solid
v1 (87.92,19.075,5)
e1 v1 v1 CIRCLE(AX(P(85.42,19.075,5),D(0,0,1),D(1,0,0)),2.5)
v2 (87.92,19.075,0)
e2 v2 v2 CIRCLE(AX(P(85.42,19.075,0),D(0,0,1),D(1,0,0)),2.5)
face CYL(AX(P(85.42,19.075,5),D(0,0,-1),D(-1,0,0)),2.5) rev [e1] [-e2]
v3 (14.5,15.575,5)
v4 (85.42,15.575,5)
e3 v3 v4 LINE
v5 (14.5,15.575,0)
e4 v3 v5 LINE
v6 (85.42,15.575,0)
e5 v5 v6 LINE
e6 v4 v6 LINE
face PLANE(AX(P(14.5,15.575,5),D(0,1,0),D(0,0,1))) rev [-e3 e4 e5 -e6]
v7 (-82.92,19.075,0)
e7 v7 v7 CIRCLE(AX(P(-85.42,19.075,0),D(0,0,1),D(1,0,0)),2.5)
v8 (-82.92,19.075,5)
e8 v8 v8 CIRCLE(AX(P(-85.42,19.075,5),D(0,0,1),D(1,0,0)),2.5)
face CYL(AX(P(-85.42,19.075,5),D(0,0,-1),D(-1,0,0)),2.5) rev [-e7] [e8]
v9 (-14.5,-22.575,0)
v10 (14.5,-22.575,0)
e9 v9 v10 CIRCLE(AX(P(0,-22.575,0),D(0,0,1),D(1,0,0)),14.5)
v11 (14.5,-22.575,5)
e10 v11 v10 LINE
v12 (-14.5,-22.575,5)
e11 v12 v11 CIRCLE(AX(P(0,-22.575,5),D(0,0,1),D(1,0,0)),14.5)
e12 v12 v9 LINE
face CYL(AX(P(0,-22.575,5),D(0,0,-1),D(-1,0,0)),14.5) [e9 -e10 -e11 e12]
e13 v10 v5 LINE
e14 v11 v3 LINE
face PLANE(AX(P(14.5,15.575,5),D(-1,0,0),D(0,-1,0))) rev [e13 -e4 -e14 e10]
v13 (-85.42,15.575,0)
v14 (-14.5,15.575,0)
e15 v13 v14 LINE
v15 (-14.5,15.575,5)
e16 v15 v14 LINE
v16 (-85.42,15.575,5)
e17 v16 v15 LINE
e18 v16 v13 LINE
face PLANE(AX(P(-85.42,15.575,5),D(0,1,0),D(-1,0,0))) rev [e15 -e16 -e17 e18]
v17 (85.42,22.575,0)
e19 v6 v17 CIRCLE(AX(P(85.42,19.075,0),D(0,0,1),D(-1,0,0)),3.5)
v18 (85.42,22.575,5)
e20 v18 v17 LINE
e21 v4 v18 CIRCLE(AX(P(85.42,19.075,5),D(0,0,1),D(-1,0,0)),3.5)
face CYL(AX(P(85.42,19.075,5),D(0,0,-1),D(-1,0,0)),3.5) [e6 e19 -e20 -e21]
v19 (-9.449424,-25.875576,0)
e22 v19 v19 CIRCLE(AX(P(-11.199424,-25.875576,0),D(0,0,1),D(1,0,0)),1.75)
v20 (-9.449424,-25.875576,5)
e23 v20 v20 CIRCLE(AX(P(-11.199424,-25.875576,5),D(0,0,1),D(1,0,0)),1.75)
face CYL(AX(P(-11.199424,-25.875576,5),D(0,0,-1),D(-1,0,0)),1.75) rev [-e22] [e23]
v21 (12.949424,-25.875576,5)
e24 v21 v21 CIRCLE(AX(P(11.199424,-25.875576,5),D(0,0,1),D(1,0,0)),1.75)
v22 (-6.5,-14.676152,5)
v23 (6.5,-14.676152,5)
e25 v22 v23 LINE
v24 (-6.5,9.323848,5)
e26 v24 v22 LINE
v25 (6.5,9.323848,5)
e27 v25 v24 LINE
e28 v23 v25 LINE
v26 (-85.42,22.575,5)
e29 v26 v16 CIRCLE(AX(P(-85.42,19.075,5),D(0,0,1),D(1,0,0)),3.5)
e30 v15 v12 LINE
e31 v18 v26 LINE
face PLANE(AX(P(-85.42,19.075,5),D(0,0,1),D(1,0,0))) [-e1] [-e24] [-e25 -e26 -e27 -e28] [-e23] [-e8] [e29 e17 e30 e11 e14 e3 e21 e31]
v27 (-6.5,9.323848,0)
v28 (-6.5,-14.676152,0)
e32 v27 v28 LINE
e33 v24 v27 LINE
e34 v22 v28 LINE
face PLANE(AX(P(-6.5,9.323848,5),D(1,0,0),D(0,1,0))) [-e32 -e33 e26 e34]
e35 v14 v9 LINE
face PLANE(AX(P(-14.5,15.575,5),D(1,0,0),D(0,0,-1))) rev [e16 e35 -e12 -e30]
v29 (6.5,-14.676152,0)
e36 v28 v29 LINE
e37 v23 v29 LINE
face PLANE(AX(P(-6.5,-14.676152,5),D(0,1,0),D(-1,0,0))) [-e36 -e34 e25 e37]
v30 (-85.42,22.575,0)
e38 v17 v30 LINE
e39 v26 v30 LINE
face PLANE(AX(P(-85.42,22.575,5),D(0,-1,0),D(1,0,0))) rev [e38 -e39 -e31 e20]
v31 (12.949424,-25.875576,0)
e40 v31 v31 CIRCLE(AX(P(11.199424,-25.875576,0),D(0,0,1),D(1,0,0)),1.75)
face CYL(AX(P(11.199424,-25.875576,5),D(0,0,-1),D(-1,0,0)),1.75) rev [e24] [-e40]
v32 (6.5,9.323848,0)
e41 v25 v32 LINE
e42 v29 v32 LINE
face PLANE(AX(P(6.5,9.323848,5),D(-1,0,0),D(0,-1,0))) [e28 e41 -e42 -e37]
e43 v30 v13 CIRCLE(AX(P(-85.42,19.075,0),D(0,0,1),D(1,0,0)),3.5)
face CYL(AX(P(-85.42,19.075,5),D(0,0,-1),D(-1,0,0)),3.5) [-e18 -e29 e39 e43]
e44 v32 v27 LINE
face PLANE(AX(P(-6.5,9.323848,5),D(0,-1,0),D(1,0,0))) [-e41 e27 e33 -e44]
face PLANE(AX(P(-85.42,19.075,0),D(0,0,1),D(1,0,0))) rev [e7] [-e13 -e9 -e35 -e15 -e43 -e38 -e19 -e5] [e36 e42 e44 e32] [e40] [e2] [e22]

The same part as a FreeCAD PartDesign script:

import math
import FreeCAD as App
import Part
import Sketcher
from FreeCAD import Vector


def add_polygon(sketch, points):
    """Adds a closed chain of lines whose ends are joined by coincident constraints."""
    first, n = sketch.GeometryCount, len(points)
    for a, b in zip(points, points[1:] + points[:1]):
        sketch.addGeometry(Part.LineSegment(App.Vector(*a, 0), App.Vector(*b, 0)), False)
    for i in range(n):
        sketch.addConstraint(Sketcher.Constraint("Coincident", first + i, 2, first + (i + 1) % n, 1))

doc = App.newDocument("Part")
params = doc.addObject("Spreadsheet::Sheet", "Params")
for row, (alias, value) in enumerate([
    ("sketch1_diameter", "5 mm"),
    ("sketch1_diameter2", "3.5 mm"),
    ("sketch1_radius", "3.5 mm"),
    ("sketch1_radius2", "14.5 mm"),
    ("sketch1_width", "13 mm"),
    ("pad1_length", "5 mm"),
], start=1):
    params.set(f"A{row}", alias)
    params.set(f"B{row}", "=" + value)
    params.setAlias(f"B{row}", alias)

body = doc.addObject("PartDesign::Body", "Body")

# Sketch on XY plane
sketch1 = body.newObject("Sketcher::SketchObject", "Sketch")
sketch1.AttachmentSupport = (doc.getObject("XY_Plane"), [""])
sketch1.MapMode = "FlatFace"
sketch1.addGeometry(Part.LineSegment(Vector(85.4, 22.6, 0), Vector(-85.4, 22.6, 0)), False)  # 0
sketch1.addGeometry(Part.ArcOfCircle(Part.Circle(Vector(-85.4, 19.1, 0), Vector(0, 0, 1), 3.5), math.radians(90), math.radians(270)), False)  # 1
sketch1.addGeometry(Part.LineSegment(Vector(-85.4, 15.6, 0), Vector(-14.5, 15.6, 0)), False)  # 2
sketch1.addGeometry(Part.LineSegment(Vector(-14.5, 15.6, 0), Vector(-14.5, -22.6, 0)), False)  # 3
sketch1.addGeometry(Part.ArcOfCircle(Part.Circle(Vector(0, -22.6, 0), Vector(0, 0, 1), 14.5), math.radians(180), math.radians(360)), False)  # 4
sketch1.addGeometry(Part.LineSegment(Vector(14.5, -22.6, 0), Vector(14.5, 15.6, 0)), False)  # 5
sketch1.addGeometry(Part.LineSegment(Vector(14.5, 15.6, 0), Vector(85.4, 15.6, 0)), False)  # 6
sketch1.addGeometry(Part.ArcOfCircle(Part.Circle(Vector(85.4, 19.1, 0), Vector(0, 0, 1), 3.5), math.radians(-90), math.radians(90)), False)  # 7
sketch1.addGeometry(Part.Circle(Vector(11.2, -25.9, 0), Vector(0, 0, 1), 1.8), False)  # 8
sketch1.addGeometry(Part.Circle(Vector(-11.2, -25.9, 0), Vector(0, 0, 1), 1.8), False)  # 9
sketch1.addGeometry(Part.Circle(Vector(85.4, 19.1, 0), Vector(0, 0, 1), 2.5), False)  # 10
add_polygon(sketch1, [(-6.5, -14.7), (-6.5, 9.3), (6.5, 9.3), (6.5, -14.7)])  # lines 11-14
sketch1.addGeometry(Part.Circle(Vector(-85.4, 19.1, 0), Vector(0, 0, 1), 2.5), False)  # 15
sketch1.addConstraint(Sketcher.Constraint("Tangent", 0, 2, 1, 1))
sketch1.addConstraint(Sketcher.Constraint("Tangent", 1, 2, 2, 1))
sketch1.addConstraint(Sketcher.Constraint("Coincident", 2, 2, 3, 1))
sketch1.addConstraint(Sketcher.Constraint("Tangent", 3, 2, 4, 1))
sketch1.addConstraint(Sketcher.Constraint("Tangent", 4, 2, 5, 1))
sketch1.addConstraint(Sketcher.Constraint("Coincident", 5, 2, 6, 1))
sketch1.addConstraint(Sketcher.Constraint("Tangent", 6, 2, 7, 1))
sketch1.addConstraint(Sketcher.Constraint("Tangent", 7, 2, 0, 1))
sketch1.addConstraint(Sketcher.Constraint("Horizontal", 0))
sketch1.addConstraint(Sketcher.Constraint("Horizontal", 2))
sketch1.addConstraint(Sketcher.Constraint("Vertical", 3))
sketch1.addConstraint(Sketcher.Constraint("Vertical", 5))
sketch1.addConstraint(Sketcher.Constraint("Horizontal", 6))
sketch1.addConstraint(Sketcher.Constraint("Vertical", 11))
sketch1.addConstraint(Sketcher.Constraint("Horizontal", 12))
sketch1.addConstraint(Sketcher.Constraint("Vertical", 13))
sketch1.addConstraint(Sketcher.Constraint("Horizontal", 14))
sketch1.addConstraint(Sketcher.Constraint("Coincident", 10, 3, 7, 3))
sketch1.addConstraint(Sketcher.Constraint("Coincident", 15, 3, 1, 3))
sketch1.addConstraint(Sketcher.Constraint("Equal", 1, 7))
sketch1.addConstraint(Sketcher.Constraint("Equal", 8, 9))
sketch1.addConstraint(Sketcher.Constraint("Equal", 10, 15))
sketch1.addConstraint(Sketcher.Constraint("Symmetric", 8, 3, 9, 3, -2))
sketch1.addConstraint(Sketcher.Constraint("PointOnObject", 4, 3, -2))
sketch1.addConstraint(Sketcher.Constraint("Equal", 2, 6))
sketch1.addConstraint(Sketcher.Constraint("Diameter", 10, 5.0))
sketch1.addConstraint(Sketcher.Constraint("Diameter", 8, 3.5))
sketch1.addConstraint(Sketcher.Constraint("Radius", 1, 3.5))
sketch1.addConstraint(Sketcher.Constraint("Radius", 4, 14.5))
sketch1.addConstraint(Sketcher.Constraint("DistanceX", 12, 1, 12, 2, 13.0))
sketch1.addConstraint(Sketcher.Constraint("DistanceY", 11, 1, 11, 2, 24.0))
sketch1.addConstraint(Sketcher.Constraint("DistanceX", 2, 2, 11, 2, 8.0))
sketch1.addConstraint(Sketcher.Constraint("DistanceX", 0, 2, 0, 1, 170.84))
sketch1.addConstraint(Sketcher.Constraint("DistanceY", 3, 2, 3, 1, 38.15))
sketch1.addConstraint(Sketcher.Constraint("DistanceY", -1, 1, 1, 3, 19.075))
sketch1.addConstraint(Sketcher.Constraint("DistanceX", -1, 1, 8, 3, 11.199424))
sketch1.addConstraint(Sketcher.Constraint("DistanceY", 8, 3, -1, 1, 25.875576))
sketch1.addConstraint(Sketcher.Constraint("DistanceY", -1, 1, 11, 2, 9.323848))
sketch1.setExpression("Constraints[29]", "Params.sketch1_diameter")
sketch1.setExpression("Constraints[30]", "Params.sketch1_diameter2")
sketch1.setExpression("Constraints[31]", "Params.sketch1_radius")
sketch1.setExpression("Constraints[32]", "Params.sketch1_radius2")
sketch1.setExpression("Constraints[33]", "Params.sketch1_width")
pad1 = body.newObject("PartDesign::Pad", "Pad")
pad1.Profile = sketch1
pad1.setExpression("Length", "Params.pad1_length")

doc.recompute()
